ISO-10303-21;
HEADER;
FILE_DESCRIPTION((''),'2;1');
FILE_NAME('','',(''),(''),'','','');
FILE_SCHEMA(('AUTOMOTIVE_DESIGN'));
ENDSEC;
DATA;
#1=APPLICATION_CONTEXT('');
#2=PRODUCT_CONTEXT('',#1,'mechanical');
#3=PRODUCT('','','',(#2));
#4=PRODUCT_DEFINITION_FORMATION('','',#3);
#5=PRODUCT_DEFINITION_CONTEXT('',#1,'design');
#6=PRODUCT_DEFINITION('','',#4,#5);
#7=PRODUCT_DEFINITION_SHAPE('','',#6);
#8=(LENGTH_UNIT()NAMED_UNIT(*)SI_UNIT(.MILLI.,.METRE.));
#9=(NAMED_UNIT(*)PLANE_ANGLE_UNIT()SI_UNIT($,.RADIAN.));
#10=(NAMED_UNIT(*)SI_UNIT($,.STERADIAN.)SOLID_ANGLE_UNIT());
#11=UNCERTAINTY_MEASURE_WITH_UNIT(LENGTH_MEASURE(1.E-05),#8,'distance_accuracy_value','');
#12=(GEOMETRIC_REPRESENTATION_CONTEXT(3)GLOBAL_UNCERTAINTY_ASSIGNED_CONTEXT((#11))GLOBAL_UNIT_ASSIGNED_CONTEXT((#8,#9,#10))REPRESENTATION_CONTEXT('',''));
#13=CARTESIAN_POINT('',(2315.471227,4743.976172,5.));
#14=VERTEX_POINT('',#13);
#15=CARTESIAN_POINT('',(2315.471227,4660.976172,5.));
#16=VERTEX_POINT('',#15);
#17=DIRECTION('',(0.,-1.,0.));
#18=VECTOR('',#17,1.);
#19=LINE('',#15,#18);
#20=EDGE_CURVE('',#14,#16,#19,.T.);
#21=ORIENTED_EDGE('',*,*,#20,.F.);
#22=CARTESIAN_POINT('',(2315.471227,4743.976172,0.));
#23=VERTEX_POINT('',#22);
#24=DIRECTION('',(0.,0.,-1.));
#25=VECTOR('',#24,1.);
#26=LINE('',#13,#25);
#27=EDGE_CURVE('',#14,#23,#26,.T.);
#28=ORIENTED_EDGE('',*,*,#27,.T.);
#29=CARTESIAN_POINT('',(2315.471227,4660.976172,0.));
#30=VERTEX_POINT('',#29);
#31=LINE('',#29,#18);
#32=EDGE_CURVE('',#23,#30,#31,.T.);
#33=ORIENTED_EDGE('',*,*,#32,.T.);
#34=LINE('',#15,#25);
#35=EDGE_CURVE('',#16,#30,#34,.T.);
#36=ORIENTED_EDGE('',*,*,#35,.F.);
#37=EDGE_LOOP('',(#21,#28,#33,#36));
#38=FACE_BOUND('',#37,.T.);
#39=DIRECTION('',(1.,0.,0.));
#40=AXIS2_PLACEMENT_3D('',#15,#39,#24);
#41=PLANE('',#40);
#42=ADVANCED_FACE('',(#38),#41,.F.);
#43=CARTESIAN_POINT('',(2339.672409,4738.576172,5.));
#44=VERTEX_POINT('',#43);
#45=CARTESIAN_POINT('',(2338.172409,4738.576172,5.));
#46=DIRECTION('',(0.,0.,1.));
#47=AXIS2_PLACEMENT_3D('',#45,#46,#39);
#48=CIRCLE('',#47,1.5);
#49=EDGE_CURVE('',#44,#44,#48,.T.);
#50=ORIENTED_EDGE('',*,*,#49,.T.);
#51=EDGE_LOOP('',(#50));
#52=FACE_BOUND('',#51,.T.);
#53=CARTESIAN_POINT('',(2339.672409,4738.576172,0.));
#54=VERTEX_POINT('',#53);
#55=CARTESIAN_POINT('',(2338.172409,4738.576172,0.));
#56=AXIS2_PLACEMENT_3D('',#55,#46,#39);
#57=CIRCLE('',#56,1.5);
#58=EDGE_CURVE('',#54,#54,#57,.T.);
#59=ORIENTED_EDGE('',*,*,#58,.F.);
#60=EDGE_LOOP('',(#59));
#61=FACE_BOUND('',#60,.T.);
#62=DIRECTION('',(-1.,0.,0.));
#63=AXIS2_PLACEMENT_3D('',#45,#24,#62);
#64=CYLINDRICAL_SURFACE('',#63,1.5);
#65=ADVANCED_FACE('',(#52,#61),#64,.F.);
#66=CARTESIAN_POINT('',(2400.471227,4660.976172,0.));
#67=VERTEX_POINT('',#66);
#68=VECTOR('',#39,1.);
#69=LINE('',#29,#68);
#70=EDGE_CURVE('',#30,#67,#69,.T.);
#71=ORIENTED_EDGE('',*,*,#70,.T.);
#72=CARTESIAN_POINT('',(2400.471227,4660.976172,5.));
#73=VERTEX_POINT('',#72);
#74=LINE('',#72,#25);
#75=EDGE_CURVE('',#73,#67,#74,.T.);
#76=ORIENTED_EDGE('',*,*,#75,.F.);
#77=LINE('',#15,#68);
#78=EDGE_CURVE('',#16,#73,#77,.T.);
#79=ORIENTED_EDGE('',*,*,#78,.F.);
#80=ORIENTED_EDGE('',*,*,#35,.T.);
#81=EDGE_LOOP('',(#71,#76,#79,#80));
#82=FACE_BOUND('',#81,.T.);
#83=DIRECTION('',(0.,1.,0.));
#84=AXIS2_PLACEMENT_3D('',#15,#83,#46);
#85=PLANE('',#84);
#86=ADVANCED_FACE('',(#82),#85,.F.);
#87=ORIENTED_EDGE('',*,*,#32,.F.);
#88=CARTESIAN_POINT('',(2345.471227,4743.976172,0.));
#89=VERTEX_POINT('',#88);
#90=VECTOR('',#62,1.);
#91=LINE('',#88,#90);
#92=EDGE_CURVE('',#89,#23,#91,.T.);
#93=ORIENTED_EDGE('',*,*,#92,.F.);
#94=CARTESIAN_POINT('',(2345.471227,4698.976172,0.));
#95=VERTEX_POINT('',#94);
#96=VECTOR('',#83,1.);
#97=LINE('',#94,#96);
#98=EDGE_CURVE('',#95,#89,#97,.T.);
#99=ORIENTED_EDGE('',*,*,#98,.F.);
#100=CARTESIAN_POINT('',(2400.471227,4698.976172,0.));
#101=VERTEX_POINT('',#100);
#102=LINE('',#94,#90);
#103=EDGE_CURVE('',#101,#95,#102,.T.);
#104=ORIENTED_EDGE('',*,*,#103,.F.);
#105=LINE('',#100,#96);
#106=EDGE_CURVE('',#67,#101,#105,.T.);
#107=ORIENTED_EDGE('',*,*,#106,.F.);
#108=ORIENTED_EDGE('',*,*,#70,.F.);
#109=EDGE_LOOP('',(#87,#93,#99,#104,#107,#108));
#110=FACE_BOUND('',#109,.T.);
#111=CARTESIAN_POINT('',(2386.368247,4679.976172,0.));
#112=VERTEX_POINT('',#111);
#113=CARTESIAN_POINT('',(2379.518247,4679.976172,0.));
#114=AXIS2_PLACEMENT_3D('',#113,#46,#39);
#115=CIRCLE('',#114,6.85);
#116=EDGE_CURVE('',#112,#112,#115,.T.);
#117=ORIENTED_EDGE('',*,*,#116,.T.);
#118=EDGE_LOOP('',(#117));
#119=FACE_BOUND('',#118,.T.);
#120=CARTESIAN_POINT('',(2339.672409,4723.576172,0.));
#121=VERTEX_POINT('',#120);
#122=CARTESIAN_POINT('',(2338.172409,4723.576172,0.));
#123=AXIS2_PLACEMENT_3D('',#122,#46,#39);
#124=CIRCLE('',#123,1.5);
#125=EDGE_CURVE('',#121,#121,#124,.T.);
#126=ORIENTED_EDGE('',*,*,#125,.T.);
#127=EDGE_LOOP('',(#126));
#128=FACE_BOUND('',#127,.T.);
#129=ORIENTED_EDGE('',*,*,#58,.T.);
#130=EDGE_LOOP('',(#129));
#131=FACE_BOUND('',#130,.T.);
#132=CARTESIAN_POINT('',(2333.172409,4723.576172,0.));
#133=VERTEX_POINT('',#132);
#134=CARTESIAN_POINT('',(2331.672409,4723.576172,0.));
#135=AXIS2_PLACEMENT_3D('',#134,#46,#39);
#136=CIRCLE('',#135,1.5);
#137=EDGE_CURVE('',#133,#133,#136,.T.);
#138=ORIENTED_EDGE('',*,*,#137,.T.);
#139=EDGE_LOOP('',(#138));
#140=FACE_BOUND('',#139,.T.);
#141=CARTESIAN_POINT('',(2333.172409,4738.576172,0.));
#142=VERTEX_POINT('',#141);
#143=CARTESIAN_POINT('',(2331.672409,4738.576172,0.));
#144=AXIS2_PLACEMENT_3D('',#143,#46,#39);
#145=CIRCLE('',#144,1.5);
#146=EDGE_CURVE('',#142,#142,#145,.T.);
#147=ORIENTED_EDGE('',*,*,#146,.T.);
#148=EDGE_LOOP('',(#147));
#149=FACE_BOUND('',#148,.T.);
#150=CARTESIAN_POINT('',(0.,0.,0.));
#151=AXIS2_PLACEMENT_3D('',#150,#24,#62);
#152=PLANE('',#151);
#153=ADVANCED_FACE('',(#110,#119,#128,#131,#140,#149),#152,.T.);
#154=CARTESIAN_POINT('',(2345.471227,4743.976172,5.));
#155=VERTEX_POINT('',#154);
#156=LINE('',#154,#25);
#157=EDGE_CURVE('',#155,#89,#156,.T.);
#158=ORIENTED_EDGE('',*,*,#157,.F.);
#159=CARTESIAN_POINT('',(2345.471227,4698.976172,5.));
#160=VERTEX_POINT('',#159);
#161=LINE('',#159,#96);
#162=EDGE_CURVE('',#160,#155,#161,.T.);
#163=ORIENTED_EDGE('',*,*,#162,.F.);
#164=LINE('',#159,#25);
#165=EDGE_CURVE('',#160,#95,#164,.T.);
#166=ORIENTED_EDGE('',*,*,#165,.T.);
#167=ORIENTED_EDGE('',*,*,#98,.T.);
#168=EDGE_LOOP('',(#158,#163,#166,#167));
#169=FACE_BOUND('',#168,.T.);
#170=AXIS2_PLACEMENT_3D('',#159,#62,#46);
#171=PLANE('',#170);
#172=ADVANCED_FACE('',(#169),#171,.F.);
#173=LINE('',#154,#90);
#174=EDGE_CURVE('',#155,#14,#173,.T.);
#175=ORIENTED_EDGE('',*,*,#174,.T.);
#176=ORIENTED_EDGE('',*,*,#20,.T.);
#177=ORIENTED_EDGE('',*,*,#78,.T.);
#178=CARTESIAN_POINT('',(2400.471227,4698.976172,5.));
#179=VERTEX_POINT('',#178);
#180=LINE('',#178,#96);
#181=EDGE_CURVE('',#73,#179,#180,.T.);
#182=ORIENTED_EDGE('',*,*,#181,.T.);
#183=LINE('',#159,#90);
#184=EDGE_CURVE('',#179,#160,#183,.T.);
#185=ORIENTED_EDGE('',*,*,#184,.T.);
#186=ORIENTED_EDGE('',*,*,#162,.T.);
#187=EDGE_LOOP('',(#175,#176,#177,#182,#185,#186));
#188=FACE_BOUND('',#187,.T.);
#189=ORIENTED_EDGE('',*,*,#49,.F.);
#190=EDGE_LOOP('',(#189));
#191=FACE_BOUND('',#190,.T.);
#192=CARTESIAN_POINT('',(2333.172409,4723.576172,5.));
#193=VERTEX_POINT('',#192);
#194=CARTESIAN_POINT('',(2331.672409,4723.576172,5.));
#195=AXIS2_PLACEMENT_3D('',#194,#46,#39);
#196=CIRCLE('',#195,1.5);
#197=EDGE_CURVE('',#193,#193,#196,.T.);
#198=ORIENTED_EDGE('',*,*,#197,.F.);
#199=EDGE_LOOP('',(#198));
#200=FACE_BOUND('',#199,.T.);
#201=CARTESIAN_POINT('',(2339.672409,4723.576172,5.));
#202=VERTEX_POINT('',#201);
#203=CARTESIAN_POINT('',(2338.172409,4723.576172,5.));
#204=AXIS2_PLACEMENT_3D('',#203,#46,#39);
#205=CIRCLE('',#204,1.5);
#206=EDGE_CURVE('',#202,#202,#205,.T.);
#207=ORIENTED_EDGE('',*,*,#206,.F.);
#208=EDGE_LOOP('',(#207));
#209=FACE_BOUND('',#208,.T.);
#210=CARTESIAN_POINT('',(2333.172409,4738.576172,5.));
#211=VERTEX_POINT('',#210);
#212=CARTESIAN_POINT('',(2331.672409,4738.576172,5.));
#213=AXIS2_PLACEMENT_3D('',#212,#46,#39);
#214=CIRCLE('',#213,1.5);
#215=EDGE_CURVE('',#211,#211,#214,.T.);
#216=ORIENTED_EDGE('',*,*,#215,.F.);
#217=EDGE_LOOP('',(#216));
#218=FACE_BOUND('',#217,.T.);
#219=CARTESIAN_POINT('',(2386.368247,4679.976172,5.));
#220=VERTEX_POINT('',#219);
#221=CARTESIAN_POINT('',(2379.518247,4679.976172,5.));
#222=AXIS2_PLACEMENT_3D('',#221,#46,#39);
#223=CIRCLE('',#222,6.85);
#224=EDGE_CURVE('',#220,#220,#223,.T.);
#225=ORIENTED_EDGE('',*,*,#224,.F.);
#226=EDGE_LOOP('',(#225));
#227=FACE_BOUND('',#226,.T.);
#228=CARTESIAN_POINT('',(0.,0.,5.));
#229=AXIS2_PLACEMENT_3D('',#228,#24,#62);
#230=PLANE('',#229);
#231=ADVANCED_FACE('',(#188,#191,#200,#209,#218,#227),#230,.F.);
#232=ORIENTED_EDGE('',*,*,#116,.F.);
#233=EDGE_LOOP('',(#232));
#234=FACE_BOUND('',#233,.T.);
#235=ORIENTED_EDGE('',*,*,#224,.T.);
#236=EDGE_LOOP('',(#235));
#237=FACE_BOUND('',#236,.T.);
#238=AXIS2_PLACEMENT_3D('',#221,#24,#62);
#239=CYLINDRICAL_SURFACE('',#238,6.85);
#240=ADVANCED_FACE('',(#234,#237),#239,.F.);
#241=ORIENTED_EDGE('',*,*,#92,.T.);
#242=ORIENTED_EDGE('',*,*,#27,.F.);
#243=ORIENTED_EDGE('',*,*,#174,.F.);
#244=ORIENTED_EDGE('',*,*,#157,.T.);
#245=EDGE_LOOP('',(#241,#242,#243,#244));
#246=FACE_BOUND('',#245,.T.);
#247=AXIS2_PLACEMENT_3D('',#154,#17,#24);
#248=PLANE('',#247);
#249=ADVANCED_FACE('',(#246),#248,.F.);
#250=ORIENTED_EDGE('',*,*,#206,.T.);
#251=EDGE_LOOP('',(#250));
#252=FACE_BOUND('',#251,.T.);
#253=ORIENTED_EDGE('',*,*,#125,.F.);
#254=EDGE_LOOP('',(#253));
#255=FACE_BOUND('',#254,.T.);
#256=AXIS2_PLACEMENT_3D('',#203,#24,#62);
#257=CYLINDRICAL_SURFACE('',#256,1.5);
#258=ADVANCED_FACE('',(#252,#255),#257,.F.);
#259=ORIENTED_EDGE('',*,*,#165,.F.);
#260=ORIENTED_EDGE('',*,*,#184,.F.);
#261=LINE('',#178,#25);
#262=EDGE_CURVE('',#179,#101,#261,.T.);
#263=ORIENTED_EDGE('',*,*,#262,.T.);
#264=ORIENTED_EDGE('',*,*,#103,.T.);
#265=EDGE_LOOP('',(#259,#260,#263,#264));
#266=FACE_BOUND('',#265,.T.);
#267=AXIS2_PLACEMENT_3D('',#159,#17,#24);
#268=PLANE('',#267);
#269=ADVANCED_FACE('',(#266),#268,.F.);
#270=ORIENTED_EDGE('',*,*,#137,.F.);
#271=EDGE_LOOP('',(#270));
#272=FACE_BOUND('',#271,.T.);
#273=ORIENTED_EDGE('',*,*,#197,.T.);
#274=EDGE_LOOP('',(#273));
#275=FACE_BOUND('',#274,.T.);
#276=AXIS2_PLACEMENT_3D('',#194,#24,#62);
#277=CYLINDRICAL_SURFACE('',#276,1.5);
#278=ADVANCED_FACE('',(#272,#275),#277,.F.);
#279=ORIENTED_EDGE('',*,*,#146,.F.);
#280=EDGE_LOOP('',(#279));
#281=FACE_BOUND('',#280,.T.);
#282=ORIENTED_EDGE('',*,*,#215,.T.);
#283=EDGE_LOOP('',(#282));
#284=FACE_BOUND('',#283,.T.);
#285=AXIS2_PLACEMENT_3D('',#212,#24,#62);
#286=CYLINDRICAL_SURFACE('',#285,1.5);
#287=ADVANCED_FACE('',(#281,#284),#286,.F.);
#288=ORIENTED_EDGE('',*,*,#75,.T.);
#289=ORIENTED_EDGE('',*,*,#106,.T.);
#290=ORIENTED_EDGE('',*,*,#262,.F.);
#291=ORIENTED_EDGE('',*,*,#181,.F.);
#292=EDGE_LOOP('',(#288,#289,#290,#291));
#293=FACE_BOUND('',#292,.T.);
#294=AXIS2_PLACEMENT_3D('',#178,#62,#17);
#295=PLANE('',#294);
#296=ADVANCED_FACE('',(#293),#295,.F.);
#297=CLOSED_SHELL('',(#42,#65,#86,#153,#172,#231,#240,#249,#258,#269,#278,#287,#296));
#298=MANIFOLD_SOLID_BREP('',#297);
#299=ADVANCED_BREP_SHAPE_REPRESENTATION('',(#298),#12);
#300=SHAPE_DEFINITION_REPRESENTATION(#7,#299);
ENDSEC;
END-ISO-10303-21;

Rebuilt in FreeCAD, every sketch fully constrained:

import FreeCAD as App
import Part
import Sketcher
from FreeCAD import Vector
Q = App.Units.Quantity

doc = App.newDocument("Part")
body = doc.addObject("PartDesign::Body", "Body")

# Sketch on XY plane
sketch1 = body.newObject("Sketcher::SketchObject", "Sketch")
sketch1.AttachmentSupport = (doc.getObject("XY_Plane"), [""])
sketch1.MapMode = "FlatFace"
sketch1.addGeometry([
    Part.LineSegment(Vector(2345.5, 4699, 0), Vector(2345.5, 4744, 0)),  # 0
    Part.LineSegment(Vector(2345.5, 4744, 0), Vector(2315.5, 4744, 0)),  # 1
    Part.LineSegment(Vector(2315.5, 4744, 0), Vector(2315.5, 4661, 0)),  # 2
    Part.LineSegment(Vector(2315.5, 4661, 0), Vector(2400.5, 4661, 0)),  # 3
    Part.LineSegment(Vector(2400.5, 4661, 0), Vector(2400.5, 4699, 0)),  # 4
    Part.LineSegment(Vector(2400.5, 4699, 0), Vector(2345.5, 4699, 0)),  # 5
    Part.Circle(Vector(2379.5, 4680, 0), Vector(0, 0, 1), 6.8),  # 6
    Part.Circle(Vector(2331.7, 4723.6, 0), Vector(0, 0, 1), 1.5),  # 7
    Part.Circle(Vector(2338.2, 4723.6, 0), Vector(0, 0, 1), 1.5),  # 8
    Part.Circle(Vector(2331.7, 4738.6, 0), Vector(0, 0, 1), 1.5),  # 9
    Part.Circle(Vector(2338.2, 4738.6, 0), Vector(0, 0, 1), 1.5),  # 10
], False)
sketch1.addConstraint([
    Sketcher.Constraint("Coincident", 0, 2, 1, 1),
    Sketcher.Constraint("Coincident", 1, 2, 2, 1),
    Sketcher.Constraint("Coincident", 2, 2, 3, 1),
    Sketcher.Constraint("Coincident", 3, 2, 4, 1),
    Sketcher.Constraint("Coincident", 4, 2, 5, 1),
    Sketcher.Constraint("Coincident", 5, 2, 0, 1),
    Sketcher.Constraint("Vertical", 0),
    Sketcher.Constraint("Horizontal", 1),
    Sketcher.Constraint("Vertical", 2),
    Sketcher.Constraint("Horizontal", 3),
    Sketcher.Constraint("Vertical", 4),
    Sketcher.Constraint("Horizontal", 5),
    Sketcher.Constraint("Equal", 7, 8),
    Sketcher.Constraint("Equal", 8, 9),
    Sketcher.Constraint("Equal", 9, 10),
    Sketcher.Constraint("Horizontal", 7, 3, 8, 3),
    Sketcher.Constraint("Horizontal", 9, 3, 10, 3),
    Sketcher.Constraint("Vertical", 7, 3, 9, 3),
    Sketcher.Constraint("Vertical", 8, 3, 10, 3),
    Sketcher.Constraint("Diameter", 7, Q("3 mm")),
    Sketcher.Constraint("Diameter", 6, Q("13.7 mm")),
    Sketcher.Constraint("DistanceX", 1, 2, 1, 1, Q("30 mm")),
    Sketcher.Constraint("DistanceX", 3, 1, 3, 2, Q("85 mm")),
    Sketcher.Constraint("DistanceY", 0, 1, 0, 2, Q("45 mm")),
    Sketcher.Constraint("DistanceY", 2, 2, 2, 1, Q("83 mm")),
    Sketcher.Constraint("DistanceY", 7, 3, 9, 3, Q("15 mm")),
    Sketcher.Constraint("DistanceY", 6, 3, 0, 2, Q("64 mm")),
    Sketcher.Constraint("DistanceY", 6, 3, 7, 3, Q("43.6 mm")),
    Sketcher.Constraint("DistanceX", 7, 3, 8, 3, Q("6.5 mm")),
    Sketcher.Constraint("DistanceX", -1, 1, 7, 3, Q("2331.672409 mm")),
    Sketcher.Constraint("DistanceX", 7, 3, 6, 3, Q("47.845838 mm")),
    Sketcher.Constraint("DistanceX", 10, 3, 0, 2, Q("7.298818 mm")),
    Sketcher.Constraint("DistanceY", -1, 1, 6, 3, Q("4679.976172 mm")),
])
pad1 = body.newObject("PartDesign::Pad", "Pad")
pad1.Profile = sketch1
pad1.Length = 5

doc.recompute()
